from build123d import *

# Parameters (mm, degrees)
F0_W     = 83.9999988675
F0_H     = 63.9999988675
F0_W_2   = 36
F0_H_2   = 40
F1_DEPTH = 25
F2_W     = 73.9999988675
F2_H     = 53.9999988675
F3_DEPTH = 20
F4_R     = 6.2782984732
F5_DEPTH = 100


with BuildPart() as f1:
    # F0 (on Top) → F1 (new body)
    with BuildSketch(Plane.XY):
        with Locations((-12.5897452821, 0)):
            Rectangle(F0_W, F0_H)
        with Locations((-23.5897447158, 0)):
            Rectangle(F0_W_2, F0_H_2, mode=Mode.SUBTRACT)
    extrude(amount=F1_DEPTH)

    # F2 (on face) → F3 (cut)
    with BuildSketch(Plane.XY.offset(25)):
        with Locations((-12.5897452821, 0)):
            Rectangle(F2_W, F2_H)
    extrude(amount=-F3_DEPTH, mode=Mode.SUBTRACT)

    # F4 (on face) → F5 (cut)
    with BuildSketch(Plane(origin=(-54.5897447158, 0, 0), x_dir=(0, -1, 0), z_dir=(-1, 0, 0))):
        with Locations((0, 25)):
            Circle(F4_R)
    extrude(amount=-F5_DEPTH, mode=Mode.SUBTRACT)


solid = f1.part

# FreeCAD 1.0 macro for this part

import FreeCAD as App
import Part
import Sketcher
from FreeCAD import Vector

doc = App.newDocument("Part")
body = doc.addObject("PartDesign::Body", "Body")

# Sketch on XY plane
sketch1 = body.newObject("Sketcher::SketchObject", "Sketch")
sketch1.AttachmentSupport = (doc.getObject("XY_Plane"), [""])
sketch1.MapMode = "FlatFace"
sketch1.addGeometry([
    Part.LineSegment(Vector(-55, 32, 0), Vector(-55, -32, 0)),  # 0
    Part.LineSegment(Vector(-55, -32, 0), Vector(29, -32, 0)),  # 1
    Part.LineSegment(Vector(29, -32, 0), Vector(29, 32, 0)),  # 2
    Part.LineSegment(Vector(29, 32, 0), Vector(-55, 32, 0)),  # 3
    Part.LineSegment(Vector(-6, -20, 0), Vector(-42, -20, 0)),  # 4
    Part.LineSegment(Vector(-42, -20, 0), Vector(-42, 20, 0)),  # 5
    Part.LineSegment(Vector(-42, 20, 0), Vector(-6, 20, 0)),  # 6
    Part.LineSegment(Vector(-6, 20, 0), Vector(-6, -20, 0)),  # 7
], False)
sketch1.addConstraint([
    Sketcher.Constraint("Coincident", 0, 2, 1, 1),
    Sketcher.Constraint("Coincident", 1, 2, 2, 1),
    Sketcher.Constraint("Coincident", 2, 2, 3, 1),
    Sketcher.Constraint("Coincident", 3, 2, 0, 1),
    Sketcher.Constraint("Coincident", 4, 2, 5, 1),
    Sketcher.Constraint("Coincident", 5, 2, 6, 1),
    Sketcher.Constraint("Coincident", 6, 2, 7, 1),
    Sketcher.Constraint("Coincident", 7, 2, 4, 1),
    Sketcher.Constraint("Vertical", 0),
    Sketcher.Constraint("Horizontal", 1),
    Sketcher.Constraint("Vertical", 2),
    Sketcher.Constraint("Horizontal", 3),
    Sketcher.Constraint("Horizontal", 4),
    Sketcher.Constraint("Vertical", 5),
    Sketcher.Constraint("Horizontal", 6),
    Sketcher.Constraint("Vertical", 7),
    Sketcher.Constraint("DistanceX", 1, 1, 1, 2, 83.999999),
    Sketcher.Constraint("DistanceX", 4, 2, 4, 1, 36.0),
    Sketcher.Constraint("DistanceY", 0, 2, 0, 1, 63.999999),
    Sketcher.Constraint("DistanceY", 5, 1, 5, 2, 40.0),
    Sketcher.Constraint("DistanceY", 0, 2, -1, 1, 31.999999),
    Sketcher.Constraint("DistanceY", 4, 2, -1, 1, 20.0),
    Sketcher.Constraint("DistanceX", 0, 2, 4, 2, 13.0),
    Sketcher.Constraint("DistanceX", 0, 2, -1, 1, 54.589745),
])
pad1 = body.newObject("PartDesign::Pad", "Pad")
pad1.Profile = sketch1
pad1.Length = 25

# Sketch on XY plane
sketch2 = body.newObject("Sketcher::SketchObject", "Sketch001")
sketch2.AttachmentSupport = (doc.getObject("XY_Plane"), [""])
sketch2.MapMode = "FlatFace"
sketch2.AttachmentOffset = App.Placement(Vector(0, 0, 25), App.Rotation())
sketch2.addGeometry([
    Part.LineSegment(Vector(-50, 27, 0), Vector(-50, -27, 0)),
    Part.LineSegment(Vector(-50, -27, 0), Vector(24, -27, 0)),
    Part.LineSegment(Vector(24, -27, 0), Vector(24, 27, 0)),
    Part.LineSegment(Vector(24, 27, 0), Vector(-50, 27, 0)),
], False)
sketch2.addConstraint([
    Sketcher.Constraint("Coincident", 0, 2, 1, 1),
    Sketcher.Constraint("Coincident", 1, 2, 2, 1),
    Sketcher.Constraint("Coincident", 2, 2, 3, 1),
    Sketcher.Constraint("Coincident", 3, 2, 0, 1),
    Sketcher.Constraint("Vertical", 0),
    Sketcher.Constraint("Horizontal", 1),
    Sketcher.Constraint("Vertical", 2),
    Sketcher.Constraint("Horizontal", 3),
    Sketcher.Constraint("DistanceX", 1, 1, 1, 2, 73.999999),
    Sketcher.Constraint("DistanceY", 0, 2, 0, 1, 53.999999),
    Sketcher.Constraint("DistanceY", 0, 2, -1, 1, 26.999999),
    Sketcher.Constraint("DistanceX", 0, 2, -1, 1, 49.589745),
])
pocket1 = body.newObject("PartDesign::Pocket", "Pocket")
pocket1.Profile = sketch2
pocket1.Length = 20

# Sketch on YZ plane
sketch3 = body.newObject("Sketcher::SketchObject", "Sketch002")
sketch3.AttachmentSupport = (doc.getObject("YZ_Plane"), [""])
sketch3.MapMode = "FlatFace"
sketch3.AttachmentOffset = App.Placement(Vector(0, 0, -54.589745), App.Rotation())
sketch3.addGeometry(Part.Circle(Vector(0, 25, 0), Vector(0, 0, 1), 6), False)
sketch3.addConstraint([
    Sketcher.Constraint("PointOnObject", 0, 3, -2),
    Sketcher.Constraint("DistanceY", -1, 1, 0, 3, 25.0),
    Sketcher.Constraint("Diameter", 0, 12.556597),
])
pocket2 = body.newObject("PartDesign::Pocket", "Pocket001")
pocket2.Profile = sketch3
pocket2.Length = 100
pocket2.Reversed = True

doc.recompute()
